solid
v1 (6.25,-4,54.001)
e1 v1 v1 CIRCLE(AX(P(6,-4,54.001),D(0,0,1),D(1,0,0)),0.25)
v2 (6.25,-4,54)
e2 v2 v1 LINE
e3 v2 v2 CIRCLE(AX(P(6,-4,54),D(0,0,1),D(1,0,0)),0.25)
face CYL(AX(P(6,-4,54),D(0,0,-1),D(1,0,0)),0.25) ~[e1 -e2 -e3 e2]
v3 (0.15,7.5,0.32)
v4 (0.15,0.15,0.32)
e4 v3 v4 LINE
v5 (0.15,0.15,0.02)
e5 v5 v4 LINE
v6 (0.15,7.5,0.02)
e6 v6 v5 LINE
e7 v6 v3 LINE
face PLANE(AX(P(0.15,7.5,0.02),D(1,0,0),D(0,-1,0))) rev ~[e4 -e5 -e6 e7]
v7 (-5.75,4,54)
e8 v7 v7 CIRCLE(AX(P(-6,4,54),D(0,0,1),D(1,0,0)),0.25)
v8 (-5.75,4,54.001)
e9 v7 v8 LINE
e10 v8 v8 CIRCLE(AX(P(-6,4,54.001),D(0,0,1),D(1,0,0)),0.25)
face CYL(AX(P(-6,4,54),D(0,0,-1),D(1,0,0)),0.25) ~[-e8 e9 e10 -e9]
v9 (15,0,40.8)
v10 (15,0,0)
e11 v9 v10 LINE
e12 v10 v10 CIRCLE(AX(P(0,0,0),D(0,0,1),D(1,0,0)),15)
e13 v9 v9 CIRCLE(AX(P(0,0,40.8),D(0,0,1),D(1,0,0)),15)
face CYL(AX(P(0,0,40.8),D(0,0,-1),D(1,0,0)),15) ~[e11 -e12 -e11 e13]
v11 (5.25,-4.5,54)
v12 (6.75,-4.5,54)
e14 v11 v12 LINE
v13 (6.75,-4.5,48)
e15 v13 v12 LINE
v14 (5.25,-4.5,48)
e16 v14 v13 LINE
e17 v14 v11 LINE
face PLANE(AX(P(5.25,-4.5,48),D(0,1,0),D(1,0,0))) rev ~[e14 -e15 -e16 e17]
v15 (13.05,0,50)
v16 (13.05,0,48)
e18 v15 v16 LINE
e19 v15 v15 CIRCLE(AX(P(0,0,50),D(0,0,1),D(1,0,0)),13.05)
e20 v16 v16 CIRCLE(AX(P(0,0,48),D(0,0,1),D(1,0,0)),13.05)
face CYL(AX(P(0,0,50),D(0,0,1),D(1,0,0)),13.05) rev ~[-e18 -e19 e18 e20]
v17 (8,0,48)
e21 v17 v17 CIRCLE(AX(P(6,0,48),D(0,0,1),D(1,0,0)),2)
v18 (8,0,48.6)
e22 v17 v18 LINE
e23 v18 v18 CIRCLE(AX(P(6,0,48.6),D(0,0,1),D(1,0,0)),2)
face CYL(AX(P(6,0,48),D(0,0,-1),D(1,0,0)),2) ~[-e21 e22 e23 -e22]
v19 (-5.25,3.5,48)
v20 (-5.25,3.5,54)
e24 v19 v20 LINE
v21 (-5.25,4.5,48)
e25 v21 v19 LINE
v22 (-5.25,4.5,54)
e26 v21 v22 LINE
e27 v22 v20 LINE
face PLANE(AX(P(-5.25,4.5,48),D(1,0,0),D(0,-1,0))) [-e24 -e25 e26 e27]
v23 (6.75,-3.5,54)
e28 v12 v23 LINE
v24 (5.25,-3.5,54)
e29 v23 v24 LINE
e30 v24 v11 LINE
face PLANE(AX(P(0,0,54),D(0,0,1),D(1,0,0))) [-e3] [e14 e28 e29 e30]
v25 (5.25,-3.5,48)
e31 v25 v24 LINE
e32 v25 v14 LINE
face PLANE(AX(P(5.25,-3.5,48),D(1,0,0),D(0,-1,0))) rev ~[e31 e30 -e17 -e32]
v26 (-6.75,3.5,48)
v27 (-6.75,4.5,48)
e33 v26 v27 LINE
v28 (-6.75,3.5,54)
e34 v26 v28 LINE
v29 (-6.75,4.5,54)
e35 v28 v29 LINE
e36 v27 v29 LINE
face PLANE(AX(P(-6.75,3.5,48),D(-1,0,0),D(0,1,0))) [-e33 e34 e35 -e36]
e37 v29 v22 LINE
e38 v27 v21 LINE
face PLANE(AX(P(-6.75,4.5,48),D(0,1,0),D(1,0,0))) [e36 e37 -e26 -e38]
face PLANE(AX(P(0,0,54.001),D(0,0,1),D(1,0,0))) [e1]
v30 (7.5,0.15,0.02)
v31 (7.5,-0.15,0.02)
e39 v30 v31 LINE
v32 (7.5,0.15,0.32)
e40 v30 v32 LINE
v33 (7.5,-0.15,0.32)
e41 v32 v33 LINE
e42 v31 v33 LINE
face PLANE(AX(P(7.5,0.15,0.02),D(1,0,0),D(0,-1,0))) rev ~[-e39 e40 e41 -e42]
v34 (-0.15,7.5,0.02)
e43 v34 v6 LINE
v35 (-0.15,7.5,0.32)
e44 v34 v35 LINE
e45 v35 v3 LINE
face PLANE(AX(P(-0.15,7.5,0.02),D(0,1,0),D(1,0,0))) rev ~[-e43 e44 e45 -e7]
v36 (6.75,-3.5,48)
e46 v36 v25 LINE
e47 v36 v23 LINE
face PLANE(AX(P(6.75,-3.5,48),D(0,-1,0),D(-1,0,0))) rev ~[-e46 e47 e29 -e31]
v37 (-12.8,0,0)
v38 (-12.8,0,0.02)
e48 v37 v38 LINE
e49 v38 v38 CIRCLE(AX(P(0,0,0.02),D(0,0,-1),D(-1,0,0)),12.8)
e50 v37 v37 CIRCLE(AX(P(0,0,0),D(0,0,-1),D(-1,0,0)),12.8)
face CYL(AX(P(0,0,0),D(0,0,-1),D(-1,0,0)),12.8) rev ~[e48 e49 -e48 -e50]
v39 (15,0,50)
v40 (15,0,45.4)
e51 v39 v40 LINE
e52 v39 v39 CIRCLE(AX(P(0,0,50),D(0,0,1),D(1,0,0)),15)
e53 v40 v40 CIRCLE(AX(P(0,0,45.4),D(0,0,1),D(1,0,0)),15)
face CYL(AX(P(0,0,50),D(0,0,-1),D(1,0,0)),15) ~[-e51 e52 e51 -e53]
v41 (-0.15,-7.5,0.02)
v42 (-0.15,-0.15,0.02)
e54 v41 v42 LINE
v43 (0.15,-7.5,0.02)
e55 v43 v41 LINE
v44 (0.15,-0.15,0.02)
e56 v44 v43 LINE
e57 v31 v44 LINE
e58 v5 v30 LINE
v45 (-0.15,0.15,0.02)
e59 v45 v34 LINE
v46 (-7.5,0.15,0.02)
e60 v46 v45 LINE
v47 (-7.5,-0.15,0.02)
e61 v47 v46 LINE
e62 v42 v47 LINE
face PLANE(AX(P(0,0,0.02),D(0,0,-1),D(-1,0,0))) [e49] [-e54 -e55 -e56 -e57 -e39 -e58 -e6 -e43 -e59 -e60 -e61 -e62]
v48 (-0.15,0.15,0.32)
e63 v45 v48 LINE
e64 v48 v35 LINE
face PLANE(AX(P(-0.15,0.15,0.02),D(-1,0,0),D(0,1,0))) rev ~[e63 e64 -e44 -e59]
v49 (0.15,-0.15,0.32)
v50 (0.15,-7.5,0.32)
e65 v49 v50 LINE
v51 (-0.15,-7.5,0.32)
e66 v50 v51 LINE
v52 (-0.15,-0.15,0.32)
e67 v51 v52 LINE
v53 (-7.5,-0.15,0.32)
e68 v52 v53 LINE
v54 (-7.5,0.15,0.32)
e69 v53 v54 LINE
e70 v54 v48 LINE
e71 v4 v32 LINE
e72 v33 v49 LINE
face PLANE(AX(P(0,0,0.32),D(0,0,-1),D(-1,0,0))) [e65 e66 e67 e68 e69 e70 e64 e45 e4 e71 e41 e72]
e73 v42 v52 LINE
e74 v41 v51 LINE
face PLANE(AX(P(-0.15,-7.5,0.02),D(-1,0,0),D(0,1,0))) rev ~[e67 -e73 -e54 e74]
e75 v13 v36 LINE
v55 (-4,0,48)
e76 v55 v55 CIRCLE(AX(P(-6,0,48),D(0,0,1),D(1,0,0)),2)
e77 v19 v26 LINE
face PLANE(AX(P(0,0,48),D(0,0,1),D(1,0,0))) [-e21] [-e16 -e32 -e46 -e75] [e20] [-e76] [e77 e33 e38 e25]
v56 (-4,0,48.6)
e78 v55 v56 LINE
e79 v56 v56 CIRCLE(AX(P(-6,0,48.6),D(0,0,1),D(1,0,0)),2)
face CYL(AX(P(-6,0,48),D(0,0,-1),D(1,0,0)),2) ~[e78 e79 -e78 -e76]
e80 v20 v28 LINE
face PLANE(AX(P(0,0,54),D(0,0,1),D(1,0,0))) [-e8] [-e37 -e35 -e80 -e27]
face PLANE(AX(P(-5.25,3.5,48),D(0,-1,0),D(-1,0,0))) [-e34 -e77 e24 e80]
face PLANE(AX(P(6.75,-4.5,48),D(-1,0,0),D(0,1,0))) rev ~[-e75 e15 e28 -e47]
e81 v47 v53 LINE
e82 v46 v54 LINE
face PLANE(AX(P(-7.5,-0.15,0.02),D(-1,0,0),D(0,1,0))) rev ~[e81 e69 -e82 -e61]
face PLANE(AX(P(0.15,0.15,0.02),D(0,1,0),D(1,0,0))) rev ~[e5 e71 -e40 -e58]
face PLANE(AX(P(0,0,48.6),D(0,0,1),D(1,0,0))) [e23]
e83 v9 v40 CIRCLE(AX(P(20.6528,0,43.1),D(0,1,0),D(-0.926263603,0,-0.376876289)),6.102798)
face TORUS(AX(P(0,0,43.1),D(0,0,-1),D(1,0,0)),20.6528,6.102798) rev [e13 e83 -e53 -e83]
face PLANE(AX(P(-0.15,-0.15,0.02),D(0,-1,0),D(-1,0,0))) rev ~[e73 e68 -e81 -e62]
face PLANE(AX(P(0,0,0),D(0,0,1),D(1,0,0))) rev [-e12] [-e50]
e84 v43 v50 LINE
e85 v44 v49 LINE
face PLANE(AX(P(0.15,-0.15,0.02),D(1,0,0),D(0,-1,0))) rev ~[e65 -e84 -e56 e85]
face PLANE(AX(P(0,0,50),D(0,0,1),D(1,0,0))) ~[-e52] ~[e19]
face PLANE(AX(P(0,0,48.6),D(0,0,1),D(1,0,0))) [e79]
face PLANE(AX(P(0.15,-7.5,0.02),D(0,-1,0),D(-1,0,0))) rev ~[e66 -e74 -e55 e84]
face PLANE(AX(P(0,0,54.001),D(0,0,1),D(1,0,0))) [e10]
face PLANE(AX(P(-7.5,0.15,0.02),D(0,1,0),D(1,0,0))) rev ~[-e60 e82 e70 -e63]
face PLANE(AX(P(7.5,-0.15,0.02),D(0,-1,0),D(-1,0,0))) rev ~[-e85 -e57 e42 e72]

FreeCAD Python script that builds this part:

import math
import FreeCAD as App
import Part
import Sketcher

V = App.Vector


def add_polygon(sketch, points):
    """Adds a closed chain of lines whose ends are joined by coincident constraints."""
    first, n = sketch.GeometryCount, len(points)
    for a, b in zip(points, points[1:] + points[:1]):
        sketch.addGeometry(Part.LineSegment(App.Vector(*a, 0), App.Vector(*b, 0)), False)
    for i in range(n):
        sketch.addConstraint(Sketcher.Constraint("Coincident", first + i, 2, first + (i + 1) % n, 1))

doc = App.newDocument("Part")
body = doc.addObject("PartDesign::Body", "Body")

sketch1 = body.newObject("Sketcher::SketchObject", "Sketch")
sketch1.AttachmentSupport = (doc.getObject("XZ_Plane"), [""])
sketch1.MapMode = "FlatFace"
sketch1.addGeometry(Part.LineSegment(V(15, 0, 0), V(0, 0, 0)), False)
sketch1.addGeometry(Part.LineSegment(V(0, 0, 0), V(0, 50, 0)), False)
sketch1.addGeometry(Part.LineSegment(V(0, 50, 0), V(15, 50, 0)), False)
sketch1.addGeometry(Part.LineSegment(V(15, 50, 0), V(15, 45.4, 0)), False)
sketch1.addGeometry(Part.ArcOfCircle(Part.Circle(V(20.7, 43.1, 0), V(0, 0, 1), 6.1), math.radians(158), math.radians(202)), False)
sketch1.addGeometry(Part.LineSegment(V(15, 40.8, 0), V(15, 0, 0)), False)
sketch1.addConstraint(Sketcher.Constraint("Coincident", 0, 2, 1, 1))
sketch1.addConstraint(Sketcher.Constraint("Coincident", 1, 2, 2, 1))
sketch1.addConstraint(Sketcher.Constraint("Coincident", 2, 2, 3, 1))
sketch1.addConstraint(Sketcher.Constraint("Coincident", 3, 2, 4, 1))
sketch1.addConstraint(Sketcher.Constraint("Coincident", 4, 2, 5, 1))
sketch1.addConstraint(Sketcher.Constraint("Coincident", 5, 2, 0, 1))
sketch1.addConstraint(Sketcher.Constraint("Horizontal", 0))
sketch1.addConstraint(Sketcher.Constraint("Vertical", 1))
sketch1.addConstraint(Sketcher.Constraint("Horizontal", 2))
sketch1.addConstraint(Sketcher.Constraint("Vertical", 3))
sketch1.addConstraint(Sketcher.Constraint("Vertical", 5))
sketch1.addConstraint(Sketcher.Constraint("Coincident", 0, 2, -1, 1))
sketch1.addConstraint(Sketcher.Constraint("Vertical", 3, 2, 4, 2))
sketch1.addConstraint(Sketcher.Constraint("DistanceX", 0, 2, 0, 1, 15.0))
sketch1.addConstraint(Sketcher.Constraint("DistanceY", 1, 1, 1, 2, 50.0))
sketch1.addConstraint(Sketcher.Constraint("DistanceY", 3, 2, 3, 1, 4.6))
sketch1.addConstraint(Sketcher.Constraint("DistanceY", 4, 2, 3, 2, 4.6))
sketch1.addConstraint(Sketcher.Constraint("Radius", 4, 6.1028))
revolution = body.newObject("PartDesign::Revolution", "Revolution")
revolution.Profile = sketch1
revolution.ReferenceAxis = (sketch1, ["V_Axis"])
revolution.Angle = 360

sketch2 = body.newObject("Sketcher::SketchObject", "Sketch001")
sketch2.AttachmentSupport = (doc.getObject("XY_Plane"), [""])
sketch2.MapMode = "FlatFace"
sketch2.AttachmentOffset = App.Placement(V(0, 0, 50), App.Rotation())
sketch2.addGeometry(Part.Circle(V(0, 0, 0), V(0, 0, 1), 13), False)
sketch2.addConstraint(Sketcher.Constraint("Coincident", 0, 3, -1, 1))
sketch2.addConstraint(Sketcher.Constraint("Diameter", 0, 26.1))
pocket1 = body.newObject("PartDesign::Pocket", "Pocket")
pocket1.Profile = sketch2
pocket1.Length = 2

sketch3 = body.newObject("Sketcher::SketchObject", "Sketch002")
sketch3.AttachmentSupport = (doc.getObject("XY_Plane"), [""])
sketch3.MapMode = "FlatFace"
sketch3.addGeometry(Part.Circle(V(0, 0, 0), V(0, 0, 1), 13), False)
sketch3.addConstraint(Sketcher.Constraint("Coincident", 0, 3, -1, 1))
sketch3.addConstraint(Sketcher.Constraint("Diameter", 0, 25.6))
pocket2 = body.newObject("PartDesign::Pocket", "Pocket001")
pocket2.Profile = sketch3
pocket2.Length = 0.02
pocket2.Reversed = True

sketch4 = body.newObject("Sketcher::SketchObject", "Sketch003")
sketch4.AttachmentSupport = (doc.getObject("XY_Plane"), [""])
sketch4.MapMode = "FlatFace"
sketch4.AttachmentOffset = App.Placement(V(0, 0, 48), App.Rotation())
sketch4.addGeometry(Part.Circle(V(-6, 0, 0), V(0, 0, 1), 2), False)
sketch4.addGeometry(Part.Circle(V(6, 0, 0), V(0, 0, 1), 2), False)
sketch4.addConstraint(Sketcher.Constraint("Equal", 0, 1))
sketch4.addConstraint(Sketcher.Constraint("Symmetric", 0, 3, 1, 3, -1, 1))
sketch4.addConstraint(Sketcher.Constraint("PointOnObject", 0, 3, -1))
sketch4.addConstraint(Sketcher.Constraint("Diameter", 0, 4.0))
sketch4.addConstraint(Sketcher.Constraint("DistanceX", 0, 3, 1, 3, 12.0))
pad1 = body.newObject("PartDesign::Pad", "Pad")
pad1.Profile = sketch4
pad1.Length = 0.6

sketch5 = body.newObject("Sketcher::SketchObject", "Sketch004")
sketch5.AttachmentSupport = (doc.getObject("XY_Plane"), [""])
sketch5.MapMode = "FlatFace"
sketch5.AttachmentOffset = App.Placement(V(0, 0, 48), App.Rotation())
add_polygon(sketch5, [(-5.2, 4.5), (-6.8, 4.5), (-6.8, 3.5), (-5.2, 3.5)])
add_polygon(sketch5, [(6.8, -4.5), (6.8, -3.5), (5.2, -3.5), (5.2, -4.5)])
sketch5.addConstraint(Sketcher.Constraint("Horizontal", 0))
sketch5.addConstraint(Sketcher.Constraint("Vertical", 1))
sketch5.addConstraint(Sketcher.Constraint("Horizontal", 2))
sketch5.addConstraint(Sketcher.Constraint("Vertical", 3))
sketch5.addConstraint(Sketcher.Constraint("Vertical", 4))
sketch5.addConstraint(Sketcher.Constraint("Horizontal", 5))
sketch5.addConstraint(Sketcher.Constraint("Vertical", 6))
sketch5.addConstraint(Sketcher.Constraint("Horizontal", 7))
sketch5.addConstraint(Sketcher.Constraint("Symmetric", 1, 2, 4, 2, -1, 1))
sketch5.addConstraint(Sketcher.Constraint("Symmetric", 3, 2, 6, 2, -1, 1))
sketch5.addConstraint(Sketcher.Constraint("DistanceY", 1, 2, 1, 1, 1.0))
sketch5.addConstraint(Sketcher.Constraint("DistanceX", 0, 2, 0, 1, 1.5))
sketch5.addConstraint(Sketcher.Constraint("DistanceX", 2, 2, 4, 2, 12.0))
sketch5.addConstraint(Sketcher.Constraint("DistanceY", 4, 2, 2, 2, 7.0))
pad2 = body.newObject("PartDesign::Pad", "Pad001")
pad2.Profile = sketch5
pad2.Length = 6

sketch6 = body.newObject("Sketcher::SketchObject", "Sketch005")
sketch6.AttachmentSupport = (doc.getObject("XY_Plane"), [""])
sketch6.MapMode = "FlatFace"
sketch6.AttachmentOffset = App.Placement(V(0, 0, 0.02), App.Rotation())
add_polygon(sketch6, [(-0.15, 0.15), (-0.15, 7.5), (0.15, 7.5), (0.15, 0.15), (7.5, 0.15), (7.5, -0.15), (0.15, -0.15), (0.15, -7.5), (-0.15, -7.5), (-0.15, -0.15), (-7.5, -0.15), (-7.5, 0.15)])
sketch6.addConstraint(Sketcher.Constraint("Vertical", 0))
sketch6.addConstraint(Sketcher.Constraint("Horizontal", 1))
sketch6.addConstraint(Sketcher.Constraint("Vertical", 2))
sketch6.addConstraint(Sketcher.Constraint("Horizontal", 3))
sketch6.addConstraint(Sketcher.Constraint("Vertical", 4))
sketch6.addConstraint(Sketcher.Constraint("Horizontal", 5))
sketch6.addConstraint(Sketcher.Constraint("Vertical", 6))
sketch6.addConstraint(Sketcher.Constraint("Horizontal", 7))
sketch6.addConstraint(Sketcher.Constraint("Vertical", 8))
sketch6.addConstraint(Sketcher.Constraint("Horizontal", 9))
sketch6.addConstraint(Sketcher.Constraint("Vertical", 10))
sketch6.addConstraint(Sketcher.Constraint("Horizontal", 11))
sketch6.addConstraint(Sketcher.Constraint("Symmetric", 0, 2, 6, 2, -1, 1))
sketch6.addConstraint(Sketcher.Constraint("Symmetric", 2, 2, 8, 2, -1, 1))
sketch6.addConstraint(Sketcher.Constraint("Symmetric", 4, 2, 10, 2, -1, 1))
sketch6.addConstraint(Sketcher.Constraint("Symmetric", 5, 2, 8, 2, -2))
sketch6.addConstraint(Sketcher.Constraint("Equal", 11, 0))
sketch6.addConstraint(Sketcher.Constraint("Equal", 7, 4))
sketch6.addConstraint(Sketcher.Constraint("DistanceX", 1, 1, 1, 2, 0.3))
sketch6.addConstraint(Sketcher.Constraint("DistanceY", 6, 2, 1, 2, 15.0))
pocket3 = body.newObject("PartDesign::Pocket", "Pocket002")
pocket3.Profile = sketch6
pocket3.Length = 0.3
pocket3.Reversed = True

sketch7 = body.newObject("Sketcher::SketchObject", "Sketch006")
sketch7.AttachmentSupport = (doc.getObject("XY_Plane"), [""])
sketch7.MapMode = "FlatFace"
sketch7.AttachmentOffset = App.Placement(V(0, 0, 54), App.Rotation())
sketch7.addGeometry(Part.Circle(V(6, -4, 0), V(0, 0, 1), 0.25), False)
sketch7.addGeometry(Part.Circle(V(-6, 4, 0), V(0, 0, 1), 0.25), False)
sketch7.addConstraint(Sketcher.Constraint("Equal", 0, 1))
sketch7.addConstraint(Sketcher.Constraint("Symmetric", 0, 3, 1, 3, -1, 1))
sketch7.addConstraint(Sketcher.Constraint("Diameter", 0, 0.5))
sketch7.addConstraint(Sketcher.Constraint("DistanceX", -1, 1, 0, 3, 6.0))
sketch7.addConstraint(Sketcher.Constraint("DistanceY", 0, 3, -1, 1, 4.0))
pad3 = body.newObject("PartDesign::Pad", "Pad002")
pad3.Profile = sketch7
pad3.Length = 0.001

doc.recompute()
